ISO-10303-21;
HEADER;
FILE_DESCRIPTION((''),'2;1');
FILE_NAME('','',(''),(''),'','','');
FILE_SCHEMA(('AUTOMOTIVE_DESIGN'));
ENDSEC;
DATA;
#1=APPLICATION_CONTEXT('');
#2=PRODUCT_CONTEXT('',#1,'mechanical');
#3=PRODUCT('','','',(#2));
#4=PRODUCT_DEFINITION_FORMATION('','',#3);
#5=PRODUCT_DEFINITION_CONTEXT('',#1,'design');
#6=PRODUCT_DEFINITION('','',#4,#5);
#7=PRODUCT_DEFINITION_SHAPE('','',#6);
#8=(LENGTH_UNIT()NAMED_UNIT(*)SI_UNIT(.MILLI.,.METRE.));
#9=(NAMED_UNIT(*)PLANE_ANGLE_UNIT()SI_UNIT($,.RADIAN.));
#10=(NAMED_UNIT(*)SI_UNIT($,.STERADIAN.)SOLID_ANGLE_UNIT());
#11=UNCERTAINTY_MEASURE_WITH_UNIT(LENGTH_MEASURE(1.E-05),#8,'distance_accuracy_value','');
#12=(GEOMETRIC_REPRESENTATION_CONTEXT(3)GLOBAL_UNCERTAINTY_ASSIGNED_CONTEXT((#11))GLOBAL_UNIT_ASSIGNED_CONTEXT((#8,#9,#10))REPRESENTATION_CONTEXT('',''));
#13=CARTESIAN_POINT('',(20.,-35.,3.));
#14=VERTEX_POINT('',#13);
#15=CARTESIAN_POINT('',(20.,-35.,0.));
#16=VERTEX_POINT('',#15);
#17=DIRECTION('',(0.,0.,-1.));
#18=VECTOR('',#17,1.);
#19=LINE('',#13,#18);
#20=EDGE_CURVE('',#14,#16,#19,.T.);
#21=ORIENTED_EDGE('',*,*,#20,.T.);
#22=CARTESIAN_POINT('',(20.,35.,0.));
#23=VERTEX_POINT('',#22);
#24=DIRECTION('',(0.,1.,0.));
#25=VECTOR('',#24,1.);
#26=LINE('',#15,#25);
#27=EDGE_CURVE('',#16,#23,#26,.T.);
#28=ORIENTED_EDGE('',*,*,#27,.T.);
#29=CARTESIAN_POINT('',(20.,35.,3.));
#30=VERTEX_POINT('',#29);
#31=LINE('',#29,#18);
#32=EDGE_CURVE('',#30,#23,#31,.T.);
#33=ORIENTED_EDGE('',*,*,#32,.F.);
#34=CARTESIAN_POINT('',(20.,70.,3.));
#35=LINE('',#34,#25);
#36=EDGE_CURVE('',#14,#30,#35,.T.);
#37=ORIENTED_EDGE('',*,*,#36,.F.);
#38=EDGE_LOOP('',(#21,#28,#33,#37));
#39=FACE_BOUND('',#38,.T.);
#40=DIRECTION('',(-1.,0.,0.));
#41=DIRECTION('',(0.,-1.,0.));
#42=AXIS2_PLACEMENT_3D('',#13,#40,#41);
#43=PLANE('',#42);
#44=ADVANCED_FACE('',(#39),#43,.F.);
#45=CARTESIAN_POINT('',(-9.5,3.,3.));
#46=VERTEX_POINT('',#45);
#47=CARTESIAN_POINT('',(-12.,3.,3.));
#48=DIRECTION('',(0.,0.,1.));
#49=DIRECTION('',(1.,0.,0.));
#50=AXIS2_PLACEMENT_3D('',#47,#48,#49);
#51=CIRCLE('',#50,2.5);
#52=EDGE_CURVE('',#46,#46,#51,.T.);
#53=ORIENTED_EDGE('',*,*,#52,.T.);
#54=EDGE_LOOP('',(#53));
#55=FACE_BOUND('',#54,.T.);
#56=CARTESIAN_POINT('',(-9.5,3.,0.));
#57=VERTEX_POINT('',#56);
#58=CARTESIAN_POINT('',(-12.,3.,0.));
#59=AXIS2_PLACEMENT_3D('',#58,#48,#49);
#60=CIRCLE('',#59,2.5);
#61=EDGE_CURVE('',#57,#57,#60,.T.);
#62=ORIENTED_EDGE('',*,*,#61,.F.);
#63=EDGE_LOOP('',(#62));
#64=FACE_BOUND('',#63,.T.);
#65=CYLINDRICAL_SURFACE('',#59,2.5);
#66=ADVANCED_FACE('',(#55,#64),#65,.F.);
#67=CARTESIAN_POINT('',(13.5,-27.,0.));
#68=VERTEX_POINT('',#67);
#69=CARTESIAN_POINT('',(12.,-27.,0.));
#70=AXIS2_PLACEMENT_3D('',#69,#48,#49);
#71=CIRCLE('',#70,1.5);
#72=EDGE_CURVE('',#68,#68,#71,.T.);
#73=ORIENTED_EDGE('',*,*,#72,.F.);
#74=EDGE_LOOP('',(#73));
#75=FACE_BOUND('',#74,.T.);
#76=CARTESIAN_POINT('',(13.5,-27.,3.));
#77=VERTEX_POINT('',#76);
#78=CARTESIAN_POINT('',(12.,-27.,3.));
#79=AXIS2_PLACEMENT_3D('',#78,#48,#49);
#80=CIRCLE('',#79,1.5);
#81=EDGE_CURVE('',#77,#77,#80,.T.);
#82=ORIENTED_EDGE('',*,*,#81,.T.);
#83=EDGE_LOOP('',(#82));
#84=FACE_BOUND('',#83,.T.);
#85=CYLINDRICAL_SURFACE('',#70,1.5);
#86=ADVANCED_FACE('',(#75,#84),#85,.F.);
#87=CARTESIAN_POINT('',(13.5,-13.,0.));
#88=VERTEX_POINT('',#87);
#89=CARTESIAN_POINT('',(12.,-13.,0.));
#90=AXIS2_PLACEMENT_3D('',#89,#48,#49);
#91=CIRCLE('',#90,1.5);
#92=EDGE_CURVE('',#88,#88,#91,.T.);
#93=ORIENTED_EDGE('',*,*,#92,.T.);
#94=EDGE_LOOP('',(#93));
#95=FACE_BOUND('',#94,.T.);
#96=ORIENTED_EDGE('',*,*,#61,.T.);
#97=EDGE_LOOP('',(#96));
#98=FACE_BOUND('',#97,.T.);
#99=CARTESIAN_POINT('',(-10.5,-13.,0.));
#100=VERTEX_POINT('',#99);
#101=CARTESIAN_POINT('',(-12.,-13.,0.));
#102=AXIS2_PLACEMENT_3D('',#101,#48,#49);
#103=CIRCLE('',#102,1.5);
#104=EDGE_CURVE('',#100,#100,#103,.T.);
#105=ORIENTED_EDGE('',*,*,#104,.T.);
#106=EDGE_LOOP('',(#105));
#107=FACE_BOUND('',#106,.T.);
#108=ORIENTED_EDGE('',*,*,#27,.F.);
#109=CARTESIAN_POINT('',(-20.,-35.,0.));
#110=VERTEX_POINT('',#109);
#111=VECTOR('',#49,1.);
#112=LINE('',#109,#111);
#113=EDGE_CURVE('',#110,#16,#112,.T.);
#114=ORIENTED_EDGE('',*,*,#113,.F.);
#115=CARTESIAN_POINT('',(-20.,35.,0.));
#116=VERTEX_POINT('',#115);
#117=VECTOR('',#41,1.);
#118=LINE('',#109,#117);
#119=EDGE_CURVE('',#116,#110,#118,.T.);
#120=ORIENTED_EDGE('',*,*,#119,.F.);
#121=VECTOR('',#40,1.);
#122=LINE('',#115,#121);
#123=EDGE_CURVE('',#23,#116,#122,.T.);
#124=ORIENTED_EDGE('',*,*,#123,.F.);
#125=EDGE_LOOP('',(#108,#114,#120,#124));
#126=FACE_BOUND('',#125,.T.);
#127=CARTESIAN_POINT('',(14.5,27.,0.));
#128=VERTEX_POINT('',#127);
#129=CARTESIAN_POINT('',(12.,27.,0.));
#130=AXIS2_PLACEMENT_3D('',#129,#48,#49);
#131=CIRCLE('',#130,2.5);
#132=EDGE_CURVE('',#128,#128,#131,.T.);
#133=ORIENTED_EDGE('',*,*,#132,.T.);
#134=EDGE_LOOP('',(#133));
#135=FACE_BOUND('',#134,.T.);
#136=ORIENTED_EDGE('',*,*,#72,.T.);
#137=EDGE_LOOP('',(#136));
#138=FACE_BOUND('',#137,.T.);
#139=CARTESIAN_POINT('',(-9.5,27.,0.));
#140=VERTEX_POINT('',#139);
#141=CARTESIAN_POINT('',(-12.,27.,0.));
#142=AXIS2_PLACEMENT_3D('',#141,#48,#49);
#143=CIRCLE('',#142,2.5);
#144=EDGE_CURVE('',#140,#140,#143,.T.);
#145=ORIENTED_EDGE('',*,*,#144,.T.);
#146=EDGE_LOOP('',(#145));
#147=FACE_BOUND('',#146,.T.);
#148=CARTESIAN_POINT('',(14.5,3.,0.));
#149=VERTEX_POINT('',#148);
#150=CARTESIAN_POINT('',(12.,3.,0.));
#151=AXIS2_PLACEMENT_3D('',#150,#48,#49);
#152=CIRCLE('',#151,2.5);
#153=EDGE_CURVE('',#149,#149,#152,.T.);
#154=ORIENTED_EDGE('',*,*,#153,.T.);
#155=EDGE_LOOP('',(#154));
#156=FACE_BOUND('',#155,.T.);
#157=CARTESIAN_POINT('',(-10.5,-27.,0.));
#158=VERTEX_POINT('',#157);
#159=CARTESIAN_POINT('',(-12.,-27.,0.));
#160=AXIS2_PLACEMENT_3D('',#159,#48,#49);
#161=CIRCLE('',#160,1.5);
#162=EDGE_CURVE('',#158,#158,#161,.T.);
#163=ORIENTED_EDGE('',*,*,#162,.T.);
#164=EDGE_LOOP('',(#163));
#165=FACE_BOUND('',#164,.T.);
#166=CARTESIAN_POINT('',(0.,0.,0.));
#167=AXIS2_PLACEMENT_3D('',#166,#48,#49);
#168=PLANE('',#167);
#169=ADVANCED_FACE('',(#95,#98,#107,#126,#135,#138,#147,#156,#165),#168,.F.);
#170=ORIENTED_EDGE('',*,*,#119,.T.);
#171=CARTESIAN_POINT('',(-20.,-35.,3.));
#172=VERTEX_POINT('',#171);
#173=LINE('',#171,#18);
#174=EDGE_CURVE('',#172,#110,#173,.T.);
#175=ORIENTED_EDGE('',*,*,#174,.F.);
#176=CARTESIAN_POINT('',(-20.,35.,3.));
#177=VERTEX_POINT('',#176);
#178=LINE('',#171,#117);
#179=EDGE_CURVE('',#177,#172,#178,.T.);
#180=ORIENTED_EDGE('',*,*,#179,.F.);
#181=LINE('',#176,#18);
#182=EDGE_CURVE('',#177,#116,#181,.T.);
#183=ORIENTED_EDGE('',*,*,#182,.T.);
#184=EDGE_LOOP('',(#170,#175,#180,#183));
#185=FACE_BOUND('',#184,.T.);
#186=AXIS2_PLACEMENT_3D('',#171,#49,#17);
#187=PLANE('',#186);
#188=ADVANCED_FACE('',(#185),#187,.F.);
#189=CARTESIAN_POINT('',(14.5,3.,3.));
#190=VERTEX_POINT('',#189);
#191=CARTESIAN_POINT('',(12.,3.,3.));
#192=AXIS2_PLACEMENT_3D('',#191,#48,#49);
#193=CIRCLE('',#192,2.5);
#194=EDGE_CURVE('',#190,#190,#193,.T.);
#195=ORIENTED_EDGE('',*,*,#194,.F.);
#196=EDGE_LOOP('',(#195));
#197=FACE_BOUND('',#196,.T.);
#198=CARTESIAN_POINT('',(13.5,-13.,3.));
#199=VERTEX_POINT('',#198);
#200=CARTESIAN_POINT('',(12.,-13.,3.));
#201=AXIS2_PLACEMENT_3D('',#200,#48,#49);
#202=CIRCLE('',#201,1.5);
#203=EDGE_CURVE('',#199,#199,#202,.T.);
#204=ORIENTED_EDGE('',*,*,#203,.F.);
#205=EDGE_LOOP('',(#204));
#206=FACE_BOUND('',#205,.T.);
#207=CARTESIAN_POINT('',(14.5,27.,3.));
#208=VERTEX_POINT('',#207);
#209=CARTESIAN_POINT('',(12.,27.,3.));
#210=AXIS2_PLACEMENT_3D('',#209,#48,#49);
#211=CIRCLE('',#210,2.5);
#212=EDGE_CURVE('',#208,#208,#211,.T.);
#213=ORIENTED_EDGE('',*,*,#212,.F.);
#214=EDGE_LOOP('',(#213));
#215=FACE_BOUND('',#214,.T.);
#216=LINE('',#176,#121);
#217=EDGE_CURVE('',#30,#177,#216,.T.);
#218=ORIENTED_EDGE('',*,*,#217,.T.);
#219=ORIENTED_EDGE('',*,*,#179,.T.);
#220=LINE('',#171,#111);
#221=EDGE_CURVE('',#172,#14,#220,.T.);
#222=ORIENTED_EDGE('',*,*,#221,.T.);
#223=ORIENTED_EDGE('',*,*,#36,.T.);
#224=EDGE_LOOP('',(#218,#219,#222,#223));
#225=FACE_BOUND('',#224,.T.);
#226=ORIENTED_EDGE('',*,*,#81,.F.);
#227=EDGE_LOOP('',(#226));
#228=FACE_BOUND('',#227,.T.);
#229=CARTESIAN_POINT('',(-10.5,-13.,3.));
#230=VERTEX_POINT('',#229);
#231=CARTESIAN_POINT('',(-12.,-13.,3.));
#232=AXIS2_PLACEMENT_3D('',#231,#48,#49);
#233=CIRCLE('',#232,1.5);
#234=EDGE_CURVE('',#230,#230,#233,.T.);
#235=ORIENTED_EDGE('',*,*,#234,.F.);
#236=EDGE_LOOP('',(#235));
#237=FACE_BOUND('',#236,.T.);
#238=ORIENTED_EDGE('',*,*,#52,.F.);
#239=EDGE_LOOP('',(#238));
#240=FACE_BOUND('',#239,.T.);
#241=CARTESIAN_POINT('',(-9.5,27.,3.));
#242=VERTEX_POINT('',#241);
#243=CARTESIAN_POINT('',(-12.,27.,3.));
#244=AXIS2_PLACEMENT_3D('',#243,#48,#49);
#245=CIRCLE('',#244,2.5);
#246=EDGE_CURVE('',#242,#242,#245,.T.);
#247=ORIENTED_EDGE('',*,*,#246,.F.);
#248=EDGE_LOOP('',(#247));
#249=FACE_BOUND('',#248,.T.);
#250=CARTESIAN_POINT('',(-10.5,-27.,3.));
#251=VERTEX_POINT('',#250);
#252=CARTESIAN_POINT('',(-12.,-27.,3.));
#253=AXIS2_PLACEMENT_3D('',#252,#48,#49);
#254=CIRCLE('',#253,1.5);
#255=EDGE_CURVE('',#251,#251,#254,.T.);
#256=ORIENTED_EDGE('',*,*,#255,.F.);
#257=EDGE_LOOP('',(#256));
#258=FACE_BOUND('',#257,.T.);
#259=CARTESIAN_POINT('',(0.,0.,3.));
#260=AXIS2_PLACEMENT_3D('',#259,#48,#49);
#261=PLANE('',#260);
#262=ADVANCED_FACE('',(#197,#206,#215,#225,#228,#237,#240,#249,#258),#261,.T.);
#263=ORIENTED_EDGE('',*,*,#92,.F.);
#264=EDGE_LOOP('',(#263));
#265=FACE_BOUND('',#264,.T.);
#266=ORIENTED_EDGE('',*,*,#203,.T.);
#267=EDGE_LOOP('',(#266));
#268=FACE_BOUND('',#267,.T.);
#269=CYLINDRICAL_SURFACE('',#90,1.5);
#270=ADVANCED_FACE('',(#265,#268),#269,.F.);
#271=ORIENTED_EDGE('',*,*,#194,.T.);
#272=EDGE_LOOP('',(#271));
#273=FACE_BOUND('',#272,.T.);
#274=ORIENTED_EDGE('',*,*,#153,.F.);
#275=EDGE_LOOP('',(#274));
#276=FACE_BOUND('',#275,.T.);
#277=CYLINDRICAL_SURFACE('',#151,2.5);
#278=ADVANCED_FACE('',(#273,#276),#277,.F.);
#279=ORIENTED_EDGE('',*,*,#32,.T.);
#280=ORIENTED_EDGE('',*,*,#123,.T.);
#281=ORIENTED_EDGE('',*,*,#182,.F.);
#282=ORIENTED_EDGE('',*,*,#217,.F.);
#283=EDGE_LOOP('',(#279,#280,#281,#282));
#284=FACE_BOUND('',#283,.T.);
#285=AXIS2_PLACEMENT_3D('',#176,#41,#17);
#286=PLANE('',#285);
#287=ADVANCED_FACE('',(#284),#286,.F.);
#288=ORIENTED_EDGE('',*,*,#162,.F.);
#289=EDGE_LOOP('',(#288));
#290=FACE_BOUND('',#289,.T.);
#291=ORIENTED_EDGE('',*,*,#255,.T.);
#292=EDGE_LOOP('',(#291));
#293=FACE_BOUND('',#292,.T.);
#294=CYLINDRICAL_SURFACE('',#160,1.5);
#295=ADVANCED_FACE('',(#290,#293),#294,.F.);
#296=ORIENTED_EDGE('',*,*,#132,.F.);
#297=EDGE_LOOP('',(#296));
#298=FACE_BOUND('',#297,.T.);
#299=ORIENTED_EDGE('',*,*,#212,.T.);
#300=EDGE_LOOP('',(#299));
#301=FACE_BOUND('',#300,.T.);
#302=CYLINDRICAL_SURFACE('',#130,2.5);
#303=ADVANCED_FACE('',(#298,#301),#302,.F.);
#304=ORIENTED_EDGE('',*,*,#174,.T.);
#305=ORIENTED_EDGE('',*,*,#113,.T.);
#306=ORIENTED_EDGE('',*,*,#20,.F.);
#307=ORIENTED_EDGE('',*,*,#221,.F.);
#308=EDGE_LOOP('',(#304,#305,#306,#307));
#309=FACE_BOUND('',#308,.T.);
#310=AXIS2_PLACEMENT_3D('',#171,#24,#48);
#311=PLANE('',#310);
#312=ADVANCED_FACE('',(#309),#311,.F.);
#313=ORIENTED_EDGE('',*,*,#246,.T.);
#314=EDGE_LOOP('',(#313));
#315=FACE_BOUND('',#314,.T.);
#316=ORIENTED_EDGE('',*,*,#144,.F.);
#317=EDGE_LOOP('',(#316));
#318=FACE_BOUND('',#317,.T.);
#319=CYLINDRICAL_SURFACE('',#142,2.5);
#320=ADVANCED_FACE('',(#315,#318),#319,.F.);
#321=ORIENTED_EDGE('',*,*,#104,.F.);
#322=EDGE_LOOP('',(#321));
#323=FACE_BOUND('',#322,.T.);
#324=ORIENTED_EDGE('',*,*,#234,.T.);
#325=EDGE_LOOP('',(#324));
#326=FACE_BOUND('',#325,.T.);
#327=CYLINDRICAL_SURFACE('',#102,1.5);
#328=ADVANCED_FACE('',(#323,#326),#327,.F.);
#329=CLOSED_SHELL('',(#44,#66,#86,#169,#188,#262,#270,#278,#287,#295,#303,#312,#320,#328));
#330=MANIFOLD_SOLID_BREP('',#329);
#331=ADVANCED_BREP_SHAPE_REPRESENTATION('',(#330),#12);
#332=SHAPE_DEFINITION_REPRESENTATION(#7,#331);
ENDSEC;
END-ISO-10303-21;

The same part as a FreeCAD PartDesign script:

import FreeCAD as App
import Part
import Sketcher
from FreeCAD import Vector
Q = App.Units.Quantity

doc = App.newDocument("Part")
params = doc.addObject("Spreadsheet::Sheet", "Params")
for row, (alias, value) in enumerate([
    ("sketch1_width", "40 mm"),
    ("sketch1_height", "70 mm"),
    ("sketch1_height2", "105 mm"),
    ("pad1_length", "3 mm"),
    ("sketch2_diameter", "3.1 mm"),
    ("sketch3_diameter", "3 mm"),
    ("sketch3_diameter2", "5 mm"),
    ("sketch4_width", "40 mm"),
    ("sketch4_height", "35 mm"),
], start=1):
    params.set(f"A{row}", alias)
    params.set(f"B{row}", "=" + value)
    params.setAlias(f"B{row}", alias)

body = doc.addObject("PartDesign::Body", "Body")

# Sketch on XY plane
sketch1 = doc.addObject("Sketcher::SketchObject", "Sketch")
body.addObject(sketch1)
sketch1.AttachmentSupport = (doc.XY_Plane, [""])
sketch1.MapMode = "FlatFace"
sketch1.addGeometry([
    Part.LineSegment(Vector(0, 70, 0), Vector(-20, 35, 0)),  # 0
    Part.LineSegment(Vector(-20, 35, 0), Vector(-20, -35, 0)),  # 1
    Part.LineSegment(Vector(-20, -35, 0), Vector(20, -35, 0)),  # 2
    Part.LineSegment(Vector(20, -35, 0), Vector(20, 70, 0)),  # 3
    Part.LineSegment(Vector(20, 70, 0), Vector(0, 70, 0)),  # 4
], False)
sketch1.addConstraint([
    Sketcher.Constraint("Coincident", 0, 2, 1, 1),
    Sketcher.Constraint("Coincident", 1, 2, 2, 1),
    Sketcher.Constraint("Coincident", 2, 2, 3, 1),
    Sketcher.Constraint("Coincident", 3, 2, 4, 1),
    Sketcher.Constraint("Coincident", 4, 2, 0, 1),
    Sketcher.Constraint("Vertical", 1),
    Sketcher.Constraint("Horizontal", 2),
    Sketcher.Constraint("Vertical", 3),
    Sketcher.Constraint("Horizontal", 4),
    Sketcher.Constraint("Symmetric", 0, 2, 2, 2, -1, 1),
    Sketcher.Constraint("PointOnObject", 4, 2, -2),
    Sketcher.Constraint("DistanceX", 2, 1, 2, 2, Q("40 mm")),
    Sketcher.Constraint("DistanceY", 1, 2, 1, 1, Q("70 mm")),
    Sketcher.Constraint("DistanceY", 3, 1, 3, 2, Q("105 mm")),
])
sketch1.setExpression("Constraints[11]", "Params.sketch1_width")
sketch1.setExpression("Constraints[12]", "Params.sketch1_height")
sketch1.setExpression("Constraints[13]", "Params.sketch1_height2")
pad1 = doc.addObject("PartDesign::Pad", "Pad")
body.addObject(pad1)
pad1.Profile = sketch1
pad1.setExpression("Length", "Params.pad1_length")

# Sketch on XY plane
sketch2 = doc.addObject("Sketcher::SketchObject", "Sketch001")
body.addObject(sketch2)
sketch2.AttachmentSupport = (doc.XY_Plane, [""])
sketch2.MapMode = "FlatFace"
sketch2.AttachmentOffset = App.Placement(Vector(0, 0, 3), App.Rotation())
sketch2.addGeometry([
    Part.Circle(Vector(17, 61, 0), Vector(0, 0, 1), 1.6),
    Part.Circle(Vector(6, 61, 0), Vector(0, 0, 1), 1.6),
    Part.Circle(Vector(17, 41, 0), Vector(0, 0, 1), 1.6),
    Part.Circle(Vector(4.9, 41, 0), Vector(0, 0, 1), 1.6),
], False)
sketch2.addConstraint([
    Sketcher.Constraint("Equal", 0, 1),
    Sketcher.Constraint("Equal", 1, 2),
    Sketcher.Constraint("Equal", 2, 3),
    Sketcher.Constraint("Horizontal", 0, 3, 1, 3),
    Sketcher.Constraint("Horizontal", 2, 3, 3, 3),
    Sketcher.Constraint("Vertical", 0, 3, 2, 3),
    Sketcher.Constraint("Diameter", 0, Q("3.1 mm")),
    Sketcher.Constraint("DistanceX", -1, 1, 0, 3, Q("17 mm")),
    Sketcher.Constraint("DistanceY", -1, 1, 0, 3, Q("61 mm")),
    Sketcher.Constraint("DistanceX", -1, 1, 1, 3, Q("6 mm")),
    Sketcher.Constraint("DistanceY", -1, 1, 2, 3, Q("41 mm")),
    Sketcher.Constraint("DistanceX", -1, 1, 3, 3, Q("4.851224 mm")),
])
sketch2.setExpression("Constraints[6]", "Params.sketch2_diameter")
pocket1 = doc.addObject("PartDesign::Pocket", "Pocket")
body.addObject(pocket1)
pocket1.Profile = sketch2
pocket1.Type = "ThroughAll"

# Sketch on XY plane
sketch3 = doc.addObject("Sketcher::SketchObject", "Sketch002")
body.addObject(sketch3)
sketch3.AttachmentSupport = (doc.XY_Plane, [""])
sketch3.MapMode = "FlatFace"
sketch3.AttachmentOffset = App.Placement(Vector(0, 0, 3), App.Rotation())
sketch3.addGeometry([
    Part.Circle(Vector(12, -27, 0), Vector(0, 0, 1), 1.5),  # 0
    Part.Circle(Vector(-12, -27, 0), Vector(0, 0, 1), 1.5),  # 1
    Part.Circle(Vector(12, -13, 0), Vector(0, 0, 1), 1.5),  # 2
    Part.Circle(Vector(-12, -13, 0), Vector(0, 0, 1), 1.5),  # 3
    Part.Circle(Vector(12, 3, 0), Vector(0, 0, 1), 2.5),  # 4
    Part.Circle(Vector(-12, 3, 0), Vector(0, 0, 1), 2.5),  # 5
    Part.Circle(Vector(12, 27, 0), Vector(0, 0, 1), 2.5),  # 6
    Part.Circle(Vector(-12, 27, 0), Vector(0, 0, 1), 2.5),  # 7
], False)
sketch3.addConstraint([
    Sketcher.Constraint("Equal", 0, 1),
    Sketcher.Constraint("Equal", 1, 2),
    Sketcher.Constraint("Equal", 2, 3),
    Sketcher.Constraint("Equal", 4, 5),
    Sketcher.Constraint("Equal", 5, 6),
    Sketcher.Constraint("Equal", 6, 7),
    Sketcher.Constraint("Symmetric", 1, 3, 6, 3, -1, 1),
    Sketcher.Constraint("Symmetric", 0, 3, 7, 3, -1, 1),
    Sketcher.Constraint("Symmetric", 0, 3, 1, 3, -2),
    Sketcher.Constraint("Symmetric", 2, 3, 3, 3, -2),
    Sketcher.Constraint("Symmetric", 4, 3, 5, 3, -2),
    Sketcher.Constraint("Vertical", 0, 3, 2, 3),
    Sketcher.Constraint("Vertical", 2, 3, 4, 3),
    Sketcher.Constraint("Diameter", 0, Q("3 mm")),
    Sketcher.Constraint("Diameter", 4, Q("5 mm")),
    Sketcher.Constraint("DistanceX", -1, 1, 0, 3, Q("12 mm")),
    Sketcher.Constraint("DistanceY", 0, 3, -1, 1, Q("27 mm")),
    Sketcher.Constraint("DistanceY", 2, 3, -1, 1, Q("13 mm")),
    Sketcher.Constraint("DistanceY", -1, 1, 4, 3, Q("3 mm")),
])
sketch3.setExpression("Constraints[13]", "Params.sketch3_diameter")
sketch3.setExpression("Constraints[14]", "Params.sketch3_diameter2")
pocket2 = doc.addObject("PartDesign::Pocket", "Pocket001")
body.addObject(pocket2)
pocket2.Profile = sketch3
pocket2.Type = "ThroughAll"

# Sketch on XY plane
sketch4 = doc.addObject("Sketcher::SketchObject", "Sketch003")
body.addObject(sketch4)
sketch4.AttachmentSupport = (doc.XY_Plane, [""])
sketch4.MapMode = "FlatFace"
sketch4.addGeometry([
    Part.LineSegment(Vector(20, 70, 0), Vector(20, 35, 0)),
    Part.LineSegment(Vector(20, 35, 0), Vector(-20, 35, 0)),
    Part.LineSegment(Vector(-20, 35, 0), Vector(-20, 70, 0)),
    Part.LineSegment(Vector(-20, 70, 0), Vector(20, 70, 0)),
], False)
sketch4.addConstraint([
    Sketcher.Constraint("Coincident", 0, 2, 1, 1),
    Sketcher.Constraint("Coincident", 1, 2, 2, 1),
    Sketcher.Constraint("Coincident", 2, 2, 3, 1),
    Sketcher.Constraint("Coincident", 3, 2, 0, 1),
    Sketcher.Constraint("Vertical", 0),
    Sketcher.Constraint("Horizontal", 1),
    Sketcher.Constraint("Vertical", 2),
    Sketcher.Constraint("Horizontal", 3),
    Sketcher.Constraint("DistanceX", 1, 2, 1, 1, Q("40 mm")),
    Sketcher.Constraint("DistanceY", 0, 2, 0, 1, Q("35 mm")),
    Sketcher.Constraint("DistanceX", -1, 1, 0, 2, Q("20 mm")),
    Sketcher.Constraint("DistanceY", -1, 1, 0, 2, Q("35 mm")),
])
sketch4.setExpression("Constraints[8]", "Params.sketch4_width")
sketch4.setExpression("Constraints[9]", "Params.sketch4_height")
pocket3 = doc.addObject("PartDesign::Pocket", "Pocket002")
body.addObject(pocket3)
pocket3.Profile = sketch4
pocket3.Type = "ThroughAll"
pocket3.Reversed = True

doc.recompute()
